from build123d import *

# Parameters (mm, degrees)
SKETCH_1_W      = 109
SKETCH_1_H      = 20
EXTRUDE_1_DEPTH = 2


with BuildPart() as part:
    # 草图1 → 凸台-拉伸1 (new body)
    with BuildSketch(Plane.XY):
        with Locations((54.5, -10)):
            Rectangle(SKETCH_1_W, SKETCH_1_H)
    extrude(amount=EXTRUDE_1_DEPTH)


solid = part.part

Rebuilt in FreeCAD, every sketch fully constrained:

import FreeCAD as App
import Part
import Sketcher
from FreeCAD import Vector


def add_polygon(sketch, points):
    """Adds a closed chain of lines whose ends are joined by coincident constraints."""
    first, n = sketch.GeometryCount, len(points)
    for a, b in zip(points, points[1:] + points[:1]):
        sketch.addGeometry(Part.LineSegment(App.Vector(*a, 0), App.Vector(*b, 0)), False)
    for i in range(n):
        sketch.addConstraint(Sketcher.Constraint("Coincident", first + i, 2, first + (i + 1) % n, 1))

doc = App.newDocument("Part")
body = doc.addObject("PartDesign::Body", "Body")

# Sketch on XY plane
sketch1 = body.newObject("Sketcher::SketchObject", "Sketch")
sketch1.AttachmentSupport = (doc.getObject("XY_Plane"), [""])
sketch1.MapMode = "FlatFace"
add_polygon(sketch1, [(0, 0), (0, -20), (109, -20), (109, 0)])  # lines 0-3
sketch1.addConstraint(Sketcher.Constraint("Vertical", 0))
sketch1.addConstraint(Sketcher.Constraint("Horizontal", 1))
sketch1.addConstraint(Sketcher.Constraint("Vertical", 2))
sketch1.addConstraint(Sketcher.Constraint("Horizontal", 3))
sketch1.addConstraint(Sketcher.Constraint("Coincident", 3, 2, -1, 1))
sketch1.addConstraint(Sketcher.Constraint("DistanceX", 1, 1, 1, 2, 109.0))
sketch1.addConstraint(Sketcher.Constraint("DistanceY", 0, 2, 0, 1, 20.0))
pad1 = body.newObject("PartDesign::Pad", "Pad")
pad1.Profile = sketch1
pad1.Length = 2

doc.recompute()
